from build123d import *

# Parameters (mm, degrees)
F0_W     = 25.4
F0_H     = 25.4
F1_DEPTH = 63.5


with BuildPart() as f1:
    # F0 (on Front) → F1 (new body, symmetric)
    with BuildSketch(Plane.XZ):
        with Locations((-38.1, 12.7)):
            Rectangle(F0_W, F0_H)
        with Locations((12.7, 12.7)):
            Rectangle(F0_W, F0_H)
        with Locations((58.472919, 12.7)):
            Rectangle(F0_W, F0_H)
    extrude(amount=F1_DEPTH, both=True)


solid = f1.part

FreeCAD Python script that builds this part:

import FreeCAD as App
import Part
import Sketcher

V = App.Vector
Q = App.Units.Quantity


def add_polygon(sketch, points):
    """Adds a closed chain of lines whose ends are joined by coincident constraints."""
    first, n = sketch.GeometryCount, len(points)
    for a, b in zip(points, points[1:] + points[:1]):
        sketch.addGeometry(Part.LineSegment(App.Vector(*a, 0), App.Vector(*b, 0)), False)
    for i in range(n):
        sketch.addConstraint(Sketcher.Constraint("Coincident", first + i, 2, first + (i + 1) % n, 1))

doc = App.newDocument("Part")
body = doc.addObject("PartDesign::Body", "Body")
body.AllowCompound = True

sketch1 = body.newObject("Sketcher::SketchObject", "Sketch")
sketch1.AttachmentSupport = (doc.getObject("XZ_Plane"), [""])
sketch1.MapMode = "FlatFace"
add_polygon(sketch1, [(-51, 25), (-51, 0), (-25, 0), (-25, 25)])
add_polygon(sketch1, [(0, 25), (0, 0), (25, 0), (25, 25)])
add_polygon(sketch1, [(46, 25), (46, 0), (71, 0), (71, 25)])
sketch1.addConstraint(Sketcher.Constraint("Vertical", 0))
sketch1.addConstraint(Sketcher.Constraint("Horizontal", 1))
sketch1.addConstraint(Sketcher.Constraint("Vertical", 2))
sketch1.addConstraint(Sketcher.Constraint("Horizontal", 3))
sketch1.addConstraint(Sketcher.Constraint("Vertical", 4))
sketch1.addConstraint(Sketcher.Constraint("Horizontal", 5))
sketch1.addConstraint(Sketcher.Constraint("Vertical", 6))
sketch1.addConstraint(Sketcher.Constraint("Horizontal", 7))
sketch1.addConstraint(Sketcher.Constraint("Vertical", 8))
sketch1.addConstraint(Sketcher.Constraint("Horizontal", 9))
sketch1.addConstraint(Sketcher.Constraint("Vertical", 10))
sketch1.addConstraint(Sketcher.Constraint("Horizontal", 11))
sketch1.addConstraint(Sketcher.Constraint("Coincident", 4, 2, -1, 1))
sketch1.addConstraint(Sketcher.Constraint("Symmetric", 1, 2, 5, 2, -1, 1))
sketch1.addConstraint(Sketcher.Constraint("PointOnObject", 8, 2, -1))
sketch1.addConstraint(Sketcher.Constraint("Horizontal", 3, 2, 6, 2))
sketch1.addConstraint(Sketcher.Constraint("Horizontal", 7, 2, 10, 2))
sketch1.addConstraint(Sketcher.Constraint("Equal", 3, 5))
sketch1.addConstraint(Sketcher.Constraint("Equal", 7, 9))
sketch1.addConstraint(Sketcher.Constraint("Equal", 11, 0))
sketch1.addConstraint(Sketcher.Constraint("DistanceX", 1, 1, 1, 2, Q("1 in")))
sketch1.addConstraint(Sketcher.Constraint("DistanceX", -1, 1, 8, 2, Q("45.772919 mm")))
pad1 = body.newObject("PartDesign::Pad", "Pad")
pad1.Profile = sketch1
pad1.Length = Q("5 in")
pad1.Midplane = True

doc.recompute()
